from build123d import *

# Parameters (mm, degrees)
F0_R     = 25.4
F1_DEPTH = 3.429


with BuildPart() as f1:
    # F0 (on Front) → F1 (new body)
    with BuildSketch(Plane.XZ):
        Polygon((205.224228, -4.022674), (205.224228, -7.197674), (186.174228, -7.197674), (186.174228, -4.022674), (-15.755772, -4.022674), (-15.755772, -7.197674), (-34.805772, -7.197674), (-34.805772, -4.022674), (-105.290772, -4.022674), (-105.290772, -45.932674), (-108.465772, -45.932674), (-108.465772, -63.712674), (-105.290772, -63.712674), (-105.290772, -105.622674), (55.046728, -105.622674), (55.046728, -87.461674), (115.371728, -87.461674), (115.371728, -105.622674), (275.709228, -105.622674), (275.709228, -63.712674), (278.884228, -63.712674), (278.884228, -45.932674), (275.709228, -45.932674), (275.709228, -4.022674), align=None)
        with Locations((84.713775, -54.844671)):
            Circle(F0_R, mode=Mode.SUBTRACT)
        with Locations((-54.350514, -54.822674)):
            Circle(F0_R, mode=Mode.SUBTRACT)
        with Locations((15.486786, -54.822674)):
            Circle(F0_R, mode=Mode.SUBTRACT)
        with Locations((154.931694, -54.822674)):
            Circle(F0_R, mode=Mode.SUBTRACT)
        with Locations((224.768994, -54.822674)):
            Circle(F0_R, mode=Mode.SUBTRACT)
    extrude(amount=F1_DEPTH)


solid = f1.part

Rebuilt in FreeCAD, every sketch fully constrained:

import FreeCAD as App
import Part
import Sketcher

V = App.Vector
Q = App.Units.Quantity


def add_polygon(sketch, points):
    """Adds a closed chain of lines whose ends are joined by coincident constraints."""
    first, n = sketch.GeometryCount, len(points)
    for a, b in zip(points, points[1:] + points[:1]):
        sketch.addGeometry(Part.LineSegment(App.Vector(*a, 0), App.Vector(*b, 0)), False)
    for i in range(n):
        sketch.addConstraint(Sketcher.Constraint("Coincident", first + i, 2, first + (i + 1) % n, 1))

doc = App.newDocument("Part")
body = doc.addObject("PartDesign::Body", "Body")

sketch1 = doc.addObject("Sketcher::SketchObject", "Sketch")
body.addObject(sketch1)
sketch1.AttachmentSupport = (doc.XZ_Plane, [""])
sketch1.MapMode = "FlatFace"
add_polygon(sketch1, [(205.2, -4), (205.2, -7.2), (186.2, -7.2), (186.2, -4), (-15.8, -4), (-15.8, -7.2), (-34.8, -7.2), (-34.8, -4), (-105.3, -4), (-105.3, -45.9), (-108.5, -45.9), (-108.5, -63.7), (-105.3, -63.7), (-105.3, -105.6), (55, -105.6), (55, -87.5), (115.4, -87.5), (115.4, -105.6), (275.7, -105.6), (275.7, -63.7), (278.9, -63.7), (278.9, -45.9), (275.7, -45.9), (275.7, -4)])
sketch1.addGeometry(Part.Circle(V(84.7, -54.8, 0), V(0, 0, 1), 25.4), False)
sketch1.addGeometry(Part.Circle(V(-54.4, -54.8, 0), V(0, 0, 1), 25.4), False)
sketch1.addGeometry(Part.Circle(V(15.5, -54.8, 0), V(0, 0, 1), 25.4), False)
sketch1.addGeometry(Part.Circle(V(154.9, -54.8, 0), V(0, 0, 1), 25.4), False)
sketch1.addGeometry(Part.Circle(V(224.8, -54.8, 0), V(0, 0, 1), 25.4), False)
sketch1.addConstraint([
    Sketcher.Constraint("Vertical", 0),
    Sketcher.Constraint("Horizontal", 1),
    Sketcher.Constraint("Vertical", 2),
    Sketcher.Constraint("Horizontal", 3),
    Sketcher.Constraint("Vertical", 4),
    Sketcher.Constraint("Horizontal", 5),
    Sketcher.Constraint("Vertical", 6),
    Sketcher.Constraint("Horizontal", 7),
    Sketcher.Constraint("Vertical", 8),
    Sketcher.Constraint("Horizontal", 9),
    Sketcher.Constraint("Vertical", 10),
    Sketcher.Constraint("Horizontal", 11),
    Sketcher.Constraint("Vertical", 12),
    Sketcher.Constraint("Horizontal", 13),
    Sketcher.Constraint("Vertical", 14),
    Sketcher.Constraint("Horizontal", 15),
    Sketcher.Constraint("Vertical", 16),
    Sketcher.Constraint("Horizontal", 17),
    Sketcher.Constraint("Vertical", 18),
    Sketcher.Constraint("Horizontal", 19),
    Sketcher.Constraint("Vertical", 20),
    Sketcher.Constraint("Horizontal", 21),
    Sketcher.Constraint("Vertical", 22),
    Sketcher.Constraint("Horizontal", 23),
    Sketcher.Constraint("Equal", 24, 25),
    Sketcher.Constraint("Equal", 25, 26),
    Sketcher.Constraint("Equal", 26, 27),
    Sketcher.Constraint("Equal", 27, 28),
    Sketcher.Constraint("Horizontal", 25, 3, 26, 3),
    Sketcher.Constraint("Horizontal", 26, 3, 27, 3),
    Sketcher.Constraint("Horizontal", 27, 3, 28, 3),
    Sketcher.Constraint("Horizontal", 1, 2, 4, 2),
    Sketcher.Constraint("Horizontal", 3, 2, 6, 2),
    Sketcher.Constraint("Horizontal", 13, 2, 16, 2),
    Sketcher.Constraint("Horizontal", 11, 2, 18, 2),
    Sketcher.Constraint("Horizontal", 9, 2, 20, 2),
    Sketcher.Constraint("Horizontal", 7, 2, 22, 2),
    Sketcher.Constraint("Vertical", 8, 2, 11, 2),
    Sketcher.Constraint("Vertical", 18, 2, 21, 2),
    Sketcher.Constraint("Equal", 1, 5),
    Sketcher.Constraint("Equal", 13, 17),
    Sketcher.Constraint("Equal", 11, 19),
    Sketcher.Constraint("Equal", 7, 23),
    Sketcher.Constraint("Equal", 21, 0),
    Sketcher.Constraint("Equal", 8, 12),
    Sketcher.Constraint("Diameter", 24, Q("2 in")),
    Sketcher.Constraint("DistanceY", 10, 2, 10, 1, Q("0.7 in")),
    Sketcher.Constraint("DistanceY", 27, 3, 2, 2, Q("2 in")),
    Sketcher.Constraint("DistanceY", 12, 2, 25, 3, Q("2 in")),
    Sketcher.Constraint("DistanceX", 1, 2, 1, 1, Q("0.75 in")),
    Sketcher.Constraint("DistanceX", 3, 2, 3, 1, Q("7.95 in")),
    Sketcher.Constraint("DistanceX", 9, 2, 5, 2, Q("2.9 in")),
    Sketcher.Constraint("DistanceX", 7, 2, 7, 1, Q("2.775 in")),
    Sketcher.Constraint("DistanceX", 13, 1, 13, 2, Q("6.3125 in")),
    Sketcher.Constraint("DistanceY", 14, 1, 14, 2, Q("0.715 in")),
    Sketcher.Constraint("DistanceX", 25, 3, 26, 3, Q("2.7495 in")),
    Sketcher.Constraint("DistanceX", 27, 3, 28, 3, Q("2.7495 in")),
    Sketcher.Constraint("DistanceY", 24, 3, -1, 1, Q("54.844671 mm")),
    Sketcher.Constraint("DistanceX", -1, 1, 0, 2, Q("205.224228 mm")),
    Sketcher.Constraint("DistanceX", 25, 3, 24, 3, Q("139.064289 mm")),
    Sketcher.Constraint("DistanceX", 24, 3, 27, 3, Q("70.217919 mm")),
    Sketcher.Constraint("DistanceX", 25, 3, 0, 2, Q("259.574742 mm")),
    Sketcher.Constraint("DistanceY", 25, 3, -1, 1, Q("54.822674 mm")),
])
pad1 = doc.addObject("PartDesign::Pad", "Pad")
body.addObject(pad1)
pad1.Profile = sketch1
pad1.Length = Q("0.135 in")

doc.recompute()
